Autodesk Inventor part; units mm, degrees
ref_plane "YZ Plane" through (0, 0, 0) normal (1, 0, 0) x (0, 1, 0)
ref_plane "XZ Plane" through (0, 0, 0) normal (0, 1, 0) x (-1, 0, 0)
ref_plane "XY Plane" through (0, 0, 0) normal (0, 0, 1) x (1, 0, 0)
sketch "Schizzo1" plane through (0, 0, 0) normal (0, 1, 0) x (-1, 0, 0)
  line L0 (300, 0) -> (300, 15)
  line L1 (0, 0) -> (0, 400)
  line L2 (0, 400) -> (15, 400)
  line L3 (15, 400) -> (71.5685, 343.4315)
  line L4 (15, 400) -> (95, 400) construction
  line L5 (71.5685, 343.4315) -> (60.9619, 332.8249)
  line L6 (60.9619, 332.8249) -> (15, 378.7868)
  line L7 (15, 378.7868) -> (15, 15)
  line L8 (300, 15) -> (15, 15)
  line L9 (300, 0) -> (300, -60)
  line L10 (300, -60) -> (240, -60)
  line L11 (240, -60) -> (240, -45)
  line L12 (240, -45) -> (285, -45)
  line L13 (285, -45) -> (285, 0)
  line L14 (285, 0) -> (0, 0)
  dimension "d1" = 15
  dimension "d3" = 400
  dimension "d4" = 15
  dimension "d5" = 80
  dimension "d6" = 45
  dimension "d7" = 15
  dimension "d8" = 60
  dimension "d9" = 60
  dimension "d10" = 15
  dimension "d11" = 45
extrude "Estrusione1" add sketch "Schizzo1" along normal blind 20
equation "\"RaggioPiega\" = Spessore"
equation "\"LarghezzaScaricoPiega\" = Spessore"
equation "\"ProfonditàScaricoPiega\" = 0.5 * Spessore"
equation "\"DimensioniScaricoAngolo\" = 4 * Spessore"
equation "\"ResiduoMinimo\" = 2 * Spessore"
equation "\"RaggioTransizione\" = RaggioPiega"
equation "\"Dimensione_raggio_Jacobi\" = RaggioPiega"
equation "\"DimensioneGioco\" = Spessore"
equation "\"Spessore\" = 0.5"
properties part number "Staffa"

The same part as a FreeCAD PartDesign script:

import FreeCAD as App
import Part
import Sketcher
Q = App.Units.Quantity

doc = App.newDocument("Part")
body = doc.addObject("PartDesign::Body", "Body")

sketch1 = body.newObject("Sketcher::SketchObject", "Sketch")
sketch1.AttachmentSupport = (doc.getObject("XZ_Plane"), [""])
sketch1.MapMode = "FlatFace"
sketch1.addGeometry(Part.LineSegment(App.Vector(-300, -60, 0), App.Vector(-300, 15, 0)), False)
sketch1.addGeometry(Part.LineSegment(App.Vector(-300, 15, 0), App.Vector(-15, 15, 0)), False)
sketch1.addGeometry(Part.LineSegment(App.Vector(-15, 15, 0), App.Vector(-15, 379, 0)), False)
sketch1.addGeometry(Part.LineSegment(App.Vector(-15, 379, 0), App.Vector(-61, 333, 0)), False)
sketch1.addGeometry(Part.LineSegment(App.Vector(-61, 333, 0), App.Vector(-72, 343, 0)), False)
sketch1.addGeometry(Part.LineSegment(App.Vector(-72, 343, 0), App.Vector(-15, 400, 0)), False)
sketch1.addGeometry(Part.LineSegment(App.Vector(-15, 400, 0), App.Vector(0, 400, 0)), False)
sketch1.addGeometry(Part.LineSegment(App.Vector(0, 400, 0), App.Vector(0, 0, 0)), False)
sketch1.addGeometry(Part.LineSegment(App.Vector(0, 0, 0), App.Vector(-285, 0, 0)), False)
sketch1.addGeometry(Part.LineSegment(App.Vector(-285, 0, 0), App.Vector(-285, -45, 0)), False)
sketch1.addGeometry(Part.LineSegment(App.Vector(-285, -45, 0), App.Vector(-240, -45, 0)), False)
sketch1.addGeometry(Part.LineSegment(App.Vector(-240, -45, 0), App.Vector(-240, -60, 0)), False)
sketch1.addGeometry(Part.LineSegment(App.Vector(-240, -60, 0), App.Vector(-300, -60, 0)), False)
sketch1.addConstraint(Sketcher.Constraint("Coincident", 0, 2, 1, 1))
sketch1.addConstraint(Sketcher.Constraint("Coincident", 1, 2, 2, 1))
sketch1.addConstraint(Sketcher.Constraint("Coincident", 2, 2, 3, 1))
sketch1.addConstraint(Sketcher.Constraint("Coincident", 3, 2, 4, 1))
sketch1.addConstraint(Sketcher.Constraint("Coincident", 4, 2, 5, 1))
sketch1.addConstraint(Sketcher.Constraint("Coincident", 5, 2, 6, 1))
sketch1.addConstraint(Sketcher.Constraint("Coincident", 6, 2, 7, 1))
sketch1.addConstraint(Sketcher.Constraint("Coincident", 7, 2, 8, 1))
sketch1.addConstraint(Sketcher.Constraint("Coincident", 8, 2, 9, 1))
sketch1.addConstraint(Sketcher.Constraint("Coincident", 9, 2, 10, 1))
sketch1.addConstraint(Sketcher.Constraint("Coincident", 10, 2, 11, 1))
sketch1.addConstraint(Sketcher.Constraint("Coincident", 11, 2, 12, 1))
sketch1.addConstraint(Sketcher.Constraint("Coincident", 12, 2, 0, 1))
sketch1.addConstraint(Sketcher.Constraint("Vertical", 0))
sketch1.addConstraint(Sketcher.Constraint("Horizontal", 1))
sketch1.addConstraint(Sketcher.Constraint("Vertical", 2))
sketch1.addConstraint(Sketcher.Constraint("Horizontal", 6))
sketch1.addConstraint(Sketcher.Constraint("Vertical", 7))
sketch1.addConstraint(Sketcher.Constraint("Horizontal", 8))
sketch1.addConstraint(Sketcher.Constraint("Vertical", 9))
sketch1.addConstraint(Sketcher.Constraint("Horizontal", 10))
sketch1.addConstraint(Sketcher.Constraint("Vertical", 11))
sketch1.addConstraint(Sketcher.Constraint("Horizontal", 12))
sketch1.addConstraint(Sketcher.Constraint("Coincident", 7, 2, -1, 1))
sketch1.addConstraint(Sketcher.Constraint("Perpendicular", 3, 4))
sketch1.addConstraint(Sketcher.Constraint("Perpendicular", 4, 5))
sketch1.addConstraint(Sketcher.Constraint("Vertical", 2, 2, 5, 2))
sketch1.addConstraint(Sketcher.Constraint("Equal", 1, 8))
sketch1.addConstraint(Sketcher.Constraint("Equal", 10, 9))
sketch1.addConstraint(Sketcher.Constraint("Equal", 6, 11))
sketch1.addConstraint(Sketcher.Constraint("DistanceX", 6, 1, 6, 2, 15.0))
sketch1.addConstraint(Sketcher.Constraint("DistanceX", 10, 1, 10, 2, 45.0))
sketch1.addConstraint(Sketcher.Constraint("DistanceY", 7, 2, 7, 1, 400.0))
sketch1.addConstraint(Sketcher.Constraint("Angle", 5, Q("45 deg")))
sketch1.addConstraint(Sketcher.Constraint("Distance", 4, 15.0))
sketch1.addConstraint(Sketcher.Constraint("Distance", 5, 80.0))
sketch1.addConstraint(Sketcher.Constraint("DistanceY", -1, 1, 0, 2, 15.0))
sketch1.addConstraint(Sketcher.Constraint("DistanceX", 1, 1, 1, 2, 285.0))
pad1 = body.newObject("PartDesign::Pad", "Pad")
pad1.Profile = sketch1
pad1.Length = 20
pad1.Reversed = True

doc.recompute()
